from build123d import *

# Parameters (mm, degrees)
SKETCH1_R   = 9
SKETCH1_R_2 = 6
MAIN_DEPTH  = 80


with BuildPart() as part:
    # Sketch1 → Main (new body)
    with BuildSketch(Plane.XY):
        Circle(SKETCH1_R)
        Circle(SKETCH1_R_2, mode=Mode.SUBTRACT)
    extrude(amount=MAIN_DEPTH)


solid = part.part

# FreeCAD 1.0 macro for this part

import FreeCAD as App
import Part
import Sketcher

doc = App.newDocument("Part")
body = doc.addObject("PartDesign::Body", "Body")

# Sketch on XY plane
sketch1 = body.newObject("Sketcher::SketchObject", "Sketch")
sketch1.AttachmentSupport = (doc.getObject("XY_Plane"), [""])
sketch1.MapMode = "FlatFace"
sketch1.addGeometry([
    Part.Circle(App.Vector(0, 0, 0), App.Vector(0, 0, 1), 9),
    Part.Circle(App.Vector(0, 0, 0), App.Vector(0, 0, 1), 6),
], False)
sketch1.addConstraint([
    Sketcher.Constraint("Coincident", 0, 3, -1, 1),
    Sketcher.Constraint("Coincident", 1, 3, -1, 1),
    Sketcher.Constraint("Diameter", 0, 18.0),
    Sketcher.Constraint("Diameter", 1, 12.0),
])
pad1 = body.newObject("PartDesign::Pad", "Pad")
pad1.Profile = sketch1
pad1.Length = 80

doc.recompute()
